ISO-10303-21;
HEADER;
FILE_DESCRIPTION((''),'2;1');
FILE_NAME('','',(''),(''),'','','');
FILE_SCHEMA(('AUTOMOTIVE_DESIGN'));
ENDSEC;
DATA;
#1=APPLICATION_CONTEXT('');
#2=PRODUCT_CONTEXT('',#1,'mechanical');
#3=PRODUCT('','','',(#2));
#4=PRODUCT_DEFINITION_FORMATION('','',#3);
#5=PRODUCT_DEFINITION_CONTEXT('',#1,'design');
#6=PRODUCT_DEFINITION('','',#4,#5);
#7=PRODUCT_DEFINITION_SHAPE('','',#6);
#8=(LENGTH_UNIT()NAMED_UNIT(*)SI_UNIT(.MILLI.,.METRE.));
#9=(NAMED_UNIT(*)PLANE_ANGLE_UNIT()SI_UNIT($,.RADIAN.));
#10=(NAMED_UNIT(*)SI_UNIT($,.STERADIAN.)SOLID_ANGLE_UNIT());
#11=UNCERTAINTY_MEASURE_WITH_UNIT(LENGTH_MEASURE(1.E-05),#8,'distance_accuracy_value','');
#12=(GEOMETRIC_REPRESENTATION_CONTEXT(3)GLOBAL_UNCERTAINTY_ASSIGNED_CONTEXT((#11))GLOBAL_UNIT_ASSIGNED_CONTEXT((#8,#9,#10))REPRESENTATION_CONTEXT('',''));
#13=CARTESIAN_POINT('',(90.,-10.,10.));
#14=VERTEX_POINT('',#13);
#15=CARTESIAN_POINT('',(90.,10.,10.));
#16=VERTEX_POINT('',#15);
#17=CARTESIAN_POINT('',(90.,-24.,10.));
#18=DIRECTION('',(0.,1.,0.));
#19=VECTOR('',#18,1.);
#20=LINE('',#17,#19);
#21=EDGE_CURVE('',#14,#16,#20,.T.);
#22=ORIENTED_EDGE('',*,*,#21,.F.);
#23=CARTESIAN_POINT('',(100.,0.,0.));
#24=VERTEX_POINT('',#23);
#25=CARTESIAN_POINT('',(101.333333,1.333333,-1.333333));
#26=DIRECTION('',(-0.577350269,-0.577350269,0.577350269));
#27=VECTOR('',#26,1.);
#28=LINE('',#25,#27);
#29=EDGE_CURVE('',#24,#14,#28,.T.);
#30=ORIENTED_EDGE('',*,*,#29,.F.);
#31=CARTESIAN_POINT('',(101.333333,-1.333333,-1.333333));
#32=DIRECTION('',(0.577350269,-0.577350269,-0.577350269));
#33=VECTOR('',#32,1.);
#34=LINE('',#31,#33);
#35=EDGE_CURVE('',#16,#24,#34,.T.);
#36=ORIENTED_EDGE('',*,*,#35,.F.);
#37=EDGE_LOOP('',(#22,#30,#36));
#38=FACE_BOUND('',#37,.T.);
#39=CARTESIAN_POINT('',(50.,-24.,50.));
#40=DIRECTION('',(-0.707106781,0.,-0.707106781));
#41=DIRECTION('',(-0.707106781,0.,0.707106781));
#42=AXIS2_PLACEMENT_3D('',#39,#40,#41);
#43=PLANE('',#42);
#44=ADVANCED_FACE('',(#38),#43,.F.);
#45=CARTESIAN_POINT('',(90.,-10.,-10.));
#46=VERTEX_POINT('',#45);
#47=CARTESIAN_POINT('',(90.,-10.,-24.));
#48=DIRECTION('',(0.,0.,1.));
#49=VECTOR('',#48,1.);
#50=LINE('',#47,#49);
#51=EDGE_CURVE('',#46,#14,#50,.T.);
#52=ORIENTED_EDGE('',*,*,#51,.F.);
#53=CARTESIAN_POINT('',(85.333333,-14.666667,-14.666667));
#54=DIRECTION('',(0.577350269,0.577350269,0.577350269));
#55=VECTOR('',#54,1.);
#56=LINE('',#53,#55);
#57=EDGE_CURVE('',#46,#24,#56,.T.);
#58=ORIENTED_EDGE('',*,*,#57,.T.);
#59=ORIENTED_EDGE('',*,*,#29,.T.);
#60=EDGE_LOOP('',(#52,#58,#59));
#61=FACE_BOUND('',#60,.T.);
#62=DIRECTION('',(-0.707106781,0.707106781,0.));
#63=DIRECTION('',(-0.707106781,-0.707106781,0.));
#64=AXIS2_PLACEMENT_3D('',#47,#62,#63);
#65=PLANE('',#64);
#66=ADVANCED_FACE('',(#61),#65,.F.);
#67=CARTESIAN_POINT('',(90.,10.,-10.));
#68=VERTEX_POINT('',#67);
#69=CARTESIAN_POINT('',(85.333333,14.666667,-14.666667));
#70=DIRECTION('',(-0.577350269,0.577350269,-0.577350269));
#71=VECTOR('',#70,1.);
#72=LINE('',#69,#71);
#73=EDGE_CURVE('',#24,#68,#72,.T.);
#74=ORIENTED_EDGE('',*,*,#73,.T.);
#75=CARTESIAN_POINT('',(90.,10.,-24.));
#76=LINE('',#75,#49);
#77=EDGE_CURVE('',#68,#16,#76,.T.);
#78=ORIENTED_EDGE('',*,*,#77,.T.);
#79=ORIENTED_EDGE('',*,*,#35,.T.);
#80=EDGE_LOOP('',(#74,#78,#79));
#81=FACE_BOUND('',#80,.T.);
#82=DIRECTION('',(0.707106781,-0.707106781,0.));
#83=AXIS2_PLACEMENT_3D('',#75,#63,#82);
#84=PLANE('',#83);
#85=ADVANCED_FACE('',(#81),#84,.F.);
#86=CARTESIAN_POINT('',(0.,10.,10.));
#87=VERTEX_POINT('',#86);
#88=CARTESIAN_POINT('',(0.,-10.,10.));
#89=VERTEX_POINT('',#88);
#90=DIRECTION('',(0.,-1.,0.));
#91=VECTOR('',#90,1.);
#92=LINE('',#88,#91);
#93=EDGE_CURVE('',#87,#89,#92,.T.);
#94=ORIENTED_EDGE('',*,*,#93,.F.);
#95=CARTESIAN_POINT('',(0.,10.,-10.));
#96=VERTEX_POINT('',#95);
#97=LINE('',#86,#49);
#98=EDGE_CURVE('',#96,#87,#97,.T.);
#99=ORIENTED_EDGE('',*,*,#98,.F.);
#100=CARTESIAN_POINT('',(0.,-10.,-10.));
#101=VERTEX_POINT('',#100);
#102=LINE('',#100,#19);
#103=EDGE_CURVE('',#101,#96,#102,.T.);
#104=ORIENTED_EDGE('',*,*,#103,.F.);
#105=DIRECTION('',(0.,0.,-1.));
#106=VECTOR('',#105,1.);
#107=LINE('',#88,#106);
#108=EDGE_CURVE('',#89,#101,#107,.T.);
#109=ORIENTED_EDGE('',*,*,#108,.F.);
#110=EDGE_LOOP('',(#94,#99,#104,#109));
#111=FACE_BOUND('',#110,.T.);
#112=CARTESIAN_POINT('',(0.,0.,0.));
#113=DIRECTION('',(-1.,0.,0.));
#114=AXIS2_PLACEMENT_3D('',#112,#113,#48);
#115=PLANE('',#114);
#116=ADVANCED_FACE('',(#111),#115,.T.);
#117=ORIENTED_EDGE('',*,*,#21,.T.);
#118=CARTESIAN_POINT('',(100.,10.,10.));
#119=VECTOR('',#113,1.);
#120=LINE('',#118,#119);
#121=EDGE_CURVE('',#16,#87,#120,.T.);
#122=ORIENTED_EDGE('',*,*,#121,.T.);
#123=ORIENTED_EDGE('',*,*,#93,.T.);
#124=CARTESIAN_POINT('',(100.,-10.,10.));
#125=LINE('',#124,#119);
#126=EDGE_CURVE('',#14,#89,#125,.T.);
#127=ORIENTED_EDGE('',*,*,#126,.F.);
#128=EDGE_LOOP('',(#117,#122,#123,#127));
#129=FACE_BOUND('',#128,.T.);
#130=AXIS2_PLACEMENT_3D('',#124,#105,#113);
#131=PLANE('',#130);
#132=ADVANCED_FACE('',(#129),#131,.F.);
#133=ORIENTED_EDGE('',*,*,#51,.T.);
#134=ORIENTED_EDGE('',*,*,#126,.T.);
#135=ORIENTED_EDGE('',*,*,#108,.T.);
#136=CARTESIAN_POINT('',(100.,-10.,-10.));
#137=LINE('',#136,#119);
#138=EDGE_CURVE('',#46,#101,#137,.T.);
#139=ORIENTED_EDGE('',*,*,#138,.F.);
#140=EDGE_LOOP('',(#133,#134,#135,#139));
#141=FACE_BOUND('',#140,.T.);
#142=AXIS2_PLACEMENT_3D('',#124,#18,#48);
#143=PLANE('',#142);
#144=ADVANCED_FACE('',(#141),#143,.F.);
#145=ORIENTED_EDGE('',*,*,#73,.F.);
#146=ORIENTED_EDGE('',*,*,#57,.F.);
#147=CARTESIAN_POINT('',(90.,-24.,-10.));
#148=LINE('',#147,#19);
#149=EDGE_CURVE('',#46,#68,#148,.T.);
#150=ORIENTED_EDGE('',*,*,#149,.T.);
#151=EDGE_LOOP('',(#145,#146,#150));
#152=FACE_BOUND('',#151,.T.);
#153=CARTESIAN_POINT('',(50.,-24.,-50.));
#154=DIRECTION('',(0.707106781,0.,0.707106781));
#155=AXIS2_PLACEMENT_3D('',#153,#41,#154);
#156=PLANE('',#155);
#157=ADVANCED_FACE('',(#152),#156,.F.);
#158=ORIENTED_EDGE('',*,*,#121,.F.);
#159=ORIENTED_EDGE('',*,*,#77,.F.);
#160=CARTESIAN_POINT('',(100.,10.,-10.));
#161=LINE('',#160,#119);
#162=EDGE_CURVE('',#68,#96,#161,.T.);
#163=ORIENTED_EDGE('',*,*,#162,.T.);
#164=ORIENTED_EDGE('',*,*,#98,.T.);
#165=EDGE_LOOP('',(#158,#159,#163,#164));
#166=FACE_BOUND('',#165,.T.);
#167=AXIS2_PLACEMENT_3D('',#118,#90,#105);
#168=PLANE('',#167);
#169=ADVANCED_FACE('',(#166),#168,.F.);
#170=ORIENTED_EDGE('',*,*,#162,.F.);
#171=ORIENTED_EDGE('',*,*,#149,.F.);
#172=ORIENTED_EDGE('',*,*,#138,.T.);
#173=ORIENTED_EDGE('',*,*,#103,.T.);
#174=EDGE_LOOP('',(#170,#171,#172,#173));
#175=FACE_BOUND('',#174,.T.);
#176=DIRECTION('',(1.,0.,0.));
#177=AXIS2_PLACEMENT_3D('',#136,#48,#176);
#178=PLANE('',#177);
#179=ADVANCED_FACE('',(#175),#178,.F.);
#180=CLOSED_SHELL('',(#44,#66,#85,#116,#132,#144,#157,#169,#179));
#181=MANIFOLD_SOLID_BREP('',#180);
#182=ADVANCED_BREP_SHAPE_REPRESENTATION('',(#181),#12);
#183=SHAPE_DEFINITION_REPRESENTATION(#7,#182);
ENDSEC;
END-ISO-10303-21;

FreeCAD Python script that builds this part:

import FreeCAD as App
import Part
import Sketcher


def add_polygon(sketch, points):
    """Adds a closed chain of lines whose ends are joined by coincident constraints."""
    first, n = sketch.GeometryCount, len(points)
    for a, b in zip(points, points[1:] + points[:1]):
        sketch.addGeometry(Part.LineSegment(App.Vector(*a, 0), App.Vector(*b, 0)), False)
    for i in range(n):
        sketch.addConstraint(Sketcher.Constraint("Coincident", first + i, 2, first + (i + 1) % n, 1))

doc = App.newDocument("Part")
body = doc.addObject("PartDesign::Body", "Body")

# Sketch on YZ plane
sketch1 = doc.addObject("Sketcher::SketchObject", "Sketch")
body.addObject(sketch1)
sketch1.AttachmentSupport = (doc.YZ_Plane, [""])
sketch1.MapMode = "FlatFace"
add_polygon(sketch1, [(10, 10), (-10, 10), (-10, -10), (10, -10)])  # lines 0-3
sketch1.addConstraint(Sketcher.Constraint("Horizontal", 0))
sketch1.addConstraint(Sketcher.Constraint("Vertical", 1))
sketch1.addConstraint(Sketcher.Constraint("Horizontal", 2))
sketch1.addConstraint(Sketcher.Constraint("Vertical", 3))
sketch1.addConstraint(Sketcher.Constraint("Symmetric", 0, 2, 2, 2, -1, 1))
sketch1.addConstraint(Sketcher.Constraint("Equal", 2, 1))
sketch1.addConstraint(Sketcher.Constraint("DistanceX", 0, 2, 0, 1, 20.0))
pad1 = doc.addObject("PartDesign::Pad", "Pad")
body.addObject(pad1)
pad1.Profile = sketch1
pad1.Length = 100

# Sketch on XY plane
sketch2 = doc.addObject("Sketcher::SketchObject", "Sketch001")
body.addObject(sketch2)
sketch2.AttachmentSupport = (doc.XY_Plane, [""])
sketch2.MapMode = "FlatFace"
sketch2.AttachmentOffset = App.Placement(App.Vector(0, 0, 10), App.Rotation())
add_polygon(sketch2, [(100, 10), (90, 10), (100, 0)])  # lines 0-2
sketch2.addConstraint(Sketcher.Constraint("Horizontal", 0))
sketch2.addConstraint(Sketcher.Constraint("Vertical", 2))
sketch2.addConstraint(Sketcher.Constraint("PointOnObject", 1, 2, -1))
sketch2.addConstraint(Sketcher.Constraint("Equal", 0, 2))
sketch2.addConstraint(Sketcher.Constraint("DistanceX", 0, 2, 0, 1, 10.0))
sketch2.addConstraint(Sketcher.Constraint("DistanceX", -1, 1, 0, 2, 90.0))
pocket1 = doc.addObject("PartDesign::Pocket", "Pocket")
body.addObject(pocket1)
pocket1.Profile = sketch2
pocket1.Length = 34

# Sketch on XY plane
sketch3 = doc.addObject("Sketcher::SketchObject", "Sketch002")
body.addObject(sketch3)
sketch3.AttachmentSupport = (doc.XY_Plane, [""])
sketch3.MapMode = "FlatFace"
sketch3.AttachmentOffset = App.Placement(App.Vector(0, 0, 10), App.Rotation())
add_polygon(sketch3, [(100, -10), (100, 0), (90, -10)])  # lines 0-2
sketch3.addConstraint(Sketcher.Constraint("Vertical", 0))
sketch3.addConstraint(Sketcher.Constraint("Horizontal", 2))
sketch3.addConstraint(Sketcher.Constraint("PointOnObject", 0, 2, -1))
sketch3.addConstraint(Sketcher.Constraint("Equal", 2, 0))
sketch3.addConstraint(Sketcher.Constraint("DistanceX", 2, 1, 2, 2, 10.0))
sketch3.addConstraint(Sketcher.Constraint("DistanceX", -1, 1, 0, 2, 100.0))
pocket2 = doc.addObject("PartDesign::Pocket", "Pocket001")
body.addObject(pocket2)
pocket2.Profile = sketch3
pocket2.Length = 34

# Sketch on XZ plane
sketch4 = doc.addObject("Sketcher::SketchObject", "Sketch003")
body.addObject(sketch4)
sketch4.AttachmentSupport = (doc.XZ_Plane, [""])
sketch4.MapMode = "FlatFace"
sketch4.AttachmentOffset = App.Placement(App.Vector(0, 0, -10), App.Rotation())
add_polygon(sketch4, [(100, -10), (90, -10), (100, 0)])  # lines 0-2
add_polygon(sketch4, [(90, 10), (100, 10), (100, 0)])  # lines 3-5
sketch4.addConstraint(Sketcher.Constraint("Horizontal", 0))
sketch4.addConstraint(Sketcher.Constraint("Vertical", 2))
sketch4.addConstraint(Sketcher.Constraint("Horizontal", 3))
sketch4.addConstraint(Sketcher.Constraint("Vertical", 4))
sketch4.addConstraint(Sketcher.Constraint("Coincident", 4, 2, 1, 2))
sketch4.addConstraint(Sketcher.Constraint("Symmetric", 0, 2, 5, 2, -1))
sketch4.addConstraint(Sketcher.Constraint("PointOnObject", 1, 2, -1))
sketch4.addConstraint(Sketcher.Constraint("Perpendicular", 1, 5))
sketch4.addConstraint(Sketcher.Constraint("DistanceX", 0, 2, 0, 1, 10.0))
sketch4.addConstraint(Sketcher.Constraint("DistanceX", -1, 1, 0, 2, 90.0))
pocket3 = doc.addObject("PartDesign::Pocket", "Pocket002")
body.addObject(pocket3)
pocket3.Profile = sketch4
pocket3.Length = 34
pocket3.Reversed = True

doc.recompute()
